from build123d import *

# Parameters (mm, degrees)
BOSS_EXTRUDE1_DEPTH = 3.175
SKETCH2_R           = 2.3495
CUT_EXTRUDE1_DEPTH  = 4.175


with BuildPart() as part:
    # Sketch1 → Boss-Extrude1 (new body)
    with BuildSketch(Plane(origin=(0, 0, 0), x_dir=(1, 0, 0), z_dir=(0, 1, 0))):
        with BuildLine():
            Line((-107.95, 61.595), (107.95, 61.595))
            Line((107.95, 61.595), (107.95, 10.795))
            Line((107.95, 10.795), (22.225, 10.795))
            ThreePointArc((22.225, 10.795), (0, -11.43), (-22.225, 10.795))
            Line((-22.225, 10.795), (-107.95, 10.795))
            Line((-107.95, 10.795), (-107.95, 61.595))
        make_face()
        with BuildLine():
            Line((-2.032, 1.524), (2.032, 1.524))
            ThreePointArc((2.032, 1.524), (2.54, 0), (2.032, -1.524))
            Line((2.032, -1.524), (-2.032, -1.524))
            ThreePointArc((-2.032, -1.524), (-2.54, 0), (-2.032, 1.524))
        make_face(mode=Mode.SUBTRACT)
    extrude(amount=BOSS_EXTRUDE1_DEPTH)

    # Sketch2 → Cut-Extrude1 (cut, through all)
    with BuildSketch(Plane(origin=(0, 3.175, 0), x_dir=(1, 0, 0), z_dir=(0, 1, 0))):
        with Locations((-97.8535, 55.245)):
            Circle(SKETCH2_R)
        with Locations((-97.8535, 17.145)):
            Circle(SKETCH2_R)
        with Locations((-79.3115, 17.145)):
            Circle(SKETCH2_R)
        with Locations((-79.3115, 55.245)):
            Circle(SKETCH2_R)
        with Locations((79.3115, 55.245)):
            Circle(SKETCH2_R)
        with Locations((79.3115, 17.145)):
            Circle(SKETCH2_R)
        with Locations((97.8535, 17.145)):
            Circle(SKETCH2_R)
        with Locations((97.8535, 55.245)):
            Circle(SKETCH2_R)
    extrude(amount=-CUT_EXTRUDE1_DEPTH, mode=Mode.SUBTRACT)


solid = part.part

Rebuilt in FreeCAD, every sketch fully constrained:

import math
import FreeCAD as App
import Part
import Sketcher

V = App.Vector
Q = App.Units.Quantity

doc = App.newDocument("Part")
body = doc.addObject("PartDesign::Body", "Body")

# Sketch on XZ plane
sketch1 = body.newObject("Sketcher::SketchObject", "Sketch")
sketch1.AttachmentSupport = (doc.getObject("XZ_Plane"), [""])
sketch1.MapMode = "FlatFace"
sketch1.addGeometry([
    Part.LineSegment(V(108, -61.6, 0), V(-108, -61.6, 0)),  # 0
    Part.LineSegment(V(-108, -61.6, 0), V(-108, -10.8, 0)),  # 1
    Part.LineSegment(V(-108, -10.8, 0), V(-22.2, -10.8, 0)),  # 2
    Part.ArcOfCircle(Part.Circle(V(0, -10.8, 0), V(0, 0, 1), 22.2), math.radians(0), math.radians(180)),  # 3
    Part.LineSegment(V(22.2, -10.8, 0), V(108, -10.8, 0)),  # 4
    Part.LineSegment(V(108, -10.8, 0), V(108, -61.6, 0)),  # 5
    Part.LineSegment(V(-2, -1.5, 0), V(2, -1.5, 0)),  # 6
    Part.ArcOfCircle(Part.Circle(V(0, 0, 0), V(0, 0, 1), 2.5), math.radians(-37), math.radians(37)),  # 7
    Part.LineSegment(V(2, 1.5, 0), V(-2, 1.5, 0)),  # 8
    Part.ArcOfCircle(Part.Circle(V(0, 0, 0), V(0, 0, 1), 2.5), math.radians(143), math.radians(217)),  # 9
], False)
sketch1.addConstraint([
    Sketcher.Constraint("Coincident", 0, 2, 1, 1),
    Sketcher.Constraint("Coincident", 1, 2, 2, 1),
    Sketcher.Constraint("Coincident", 2, 2, 3, 2),
    Sketcher.Constraint("Coincident", 3, 1, 4, 1),
    Sketcher.Constraint("Coincident", 4, 2, 5, 1),
    Sketcher.Constraint("Coincident", 5, 2, 0, 1),
    Sketcher.Constraint("Coincident", 6, 2, 7, 1),
    Sketcher.Constraint("Coincident", 7, 2, 8, 1),
    Sketcher.Constraint("Coincident", 8, 2, 9, 1),
    Sketcher.Constraint("Coincident", 9, 2, 6, 1),
    Sketcher.Constraint("Horizontal", 0),
    Sketcher.Constraint("Vertical", 1),
    Sketcher.Constraint("Horizontal", 2),
    Sketcher.Constraint("Horizontal", 4),
    Sketcher.Constraint("Vertical", 5),
    Sketcher.Constraint("Horizontal", 6),
    Sketcher.Constraint("Horizontal", 8),
    Sketcher.Constraint("Coincident", 7, 3, -1, 1),
    Sketcher.Constraint("Coincident", 9, 3, -1, 1),
    Sketcher.Constraint("Equal", 7, 9),
    Sketcher.Constraint("Symmetric", 2, 2, 3, 1, -2),
    Sketcher.Constraint("Horizontal", 3, 3, 1, 2),
    Sketcher.Constraint("Vertical", 6, 2, 7, 2),
    Sketcher.Constraint("Equal", 2, 4),
    Sketcher.Constraint("Radius", 7, Q("0.1 in")),
    Sketcher.Constraint("DistanceY", 1, 1, 1, 2, Q("2 in")),
    Sketcher.Constraint("DistanceX", 0, 2, 0, 1, Q("8.5 in")),
    Sketcher.Constraint("Radius", 3, Q("0.875 in")),
    Sketcher.Constraint("DistanceX", 6, 1, 6, 2, Q("0.16 in")),
    Sketcher.Constraint("DistanceY", 3, 3, -1, 1, Q("0.425 in")),
])
pad1 = body.newObject("PartDesign::Pad", "Pad")
pad1.Profile = sketch1
pad1.Length = Q("0.125 in")
pad1.Reversed = True

# Sketch on XZ plane
sketch2 = body.newObject("Sketcher::SketchObject", "Sketch001")
sketch2.AttachmentSupport = (doc.getObject("XZ_Plane"), [""])
sketch2.MapMode = "FlatFace"
sketch2.AttachmentOffset = App.Placement(V(0, 0, -0.125 * 25.4), App.Rotation())
sketch2.addGeometry([
    Part.Circle(V(-97.9, -55.2, 0), V(0, 0, 1), 2.3),  # 0
    Part.Circle(V(-97.9, -17.1, 0), V(0, 0, 1), 2.3),  # 1
    Part.Circle(V(-79.3, -17.1, 0), V(0, 0, 1), 2.3),  # 2
    Part.Circle(V(-79.3, -55.2, 0), V(0, 0, 1), 2.3),  # 3
    Part.Circle(V(79.3, -55.2, 0), V(0, 0, 1), 2.3),  # 4
    Part.Circle(V(79.3, -17.1, 0), V(0, 0, 1), 2.3),  # 5
    Part.Circle(V(97.9, -17.1, 0), V(0, 0, 1), 2.3),  # 6
    Part.Circle(V(97.9, -55.2, 0), V(0, 0, 1), 2.3),  # 7
], False)
sketch2.addConstraint([
    Sketcher.Constraint("Equal", 0, 1),
    Sketcher.Constraint("Equal", 1, 2),
    Sketcher.Constraint("Equal", 2, 3),
    Sketcher.Constraint("Equal", 3, 4),
    Sketcher.Constraint("Equal", 4, 5),
    Sketcher.Constraint("Equal", 5, 6),
    Sketcher.Constraint("Equal", 6, 7),
    Sketcher.Constraint("Symmetric", 3, 3, 4, 3, -2),
    Sketcher.Constraint("Symmetric", 2, 3, 5, 3, -2),
    Sketcher.Constraint("Symmetric", 1, 3, 6, 3, -2),
    Sketcher.Constraint("Symmetric", 0, 3, 7, 3, -2),
    Sketcher.Constraint("Horizontal", 1, 3, 2, 3),
    Sketcher.Constraint("Horizontal", 0, 3, 3, 3),
    Sketcher.Constraint("Vertical", 0, 3, 1, 3),
    Sketcher.Constraint("Vertical", 2, 3, 3, 3),
    Sketcher.Constraint("Diameter", 0, Q("0.185 in")),
    Sketcher.Constraint("DistanceY", 0, 3, 1, 3, Q("1.5 in")),
    Sketcher.Constraint("DistanceX", 1, 3, 2, 3, Q("0.73 in")),
    Sketcher.Constraint("DistanceY", 0, 3, -1, 1, Q("2.175 in")),
    Sketcher.Constraint("DistanceX", 3, 3, 4, 3, Q("6.245 in")),
])
pocket1 = body.newObject("PartDesign::Pocket", "Pocket")
pocket1.Profile = sketch2
pocket1.Type = "ThroughAll"
pocket1.Reversed = True

doc.recompute()
